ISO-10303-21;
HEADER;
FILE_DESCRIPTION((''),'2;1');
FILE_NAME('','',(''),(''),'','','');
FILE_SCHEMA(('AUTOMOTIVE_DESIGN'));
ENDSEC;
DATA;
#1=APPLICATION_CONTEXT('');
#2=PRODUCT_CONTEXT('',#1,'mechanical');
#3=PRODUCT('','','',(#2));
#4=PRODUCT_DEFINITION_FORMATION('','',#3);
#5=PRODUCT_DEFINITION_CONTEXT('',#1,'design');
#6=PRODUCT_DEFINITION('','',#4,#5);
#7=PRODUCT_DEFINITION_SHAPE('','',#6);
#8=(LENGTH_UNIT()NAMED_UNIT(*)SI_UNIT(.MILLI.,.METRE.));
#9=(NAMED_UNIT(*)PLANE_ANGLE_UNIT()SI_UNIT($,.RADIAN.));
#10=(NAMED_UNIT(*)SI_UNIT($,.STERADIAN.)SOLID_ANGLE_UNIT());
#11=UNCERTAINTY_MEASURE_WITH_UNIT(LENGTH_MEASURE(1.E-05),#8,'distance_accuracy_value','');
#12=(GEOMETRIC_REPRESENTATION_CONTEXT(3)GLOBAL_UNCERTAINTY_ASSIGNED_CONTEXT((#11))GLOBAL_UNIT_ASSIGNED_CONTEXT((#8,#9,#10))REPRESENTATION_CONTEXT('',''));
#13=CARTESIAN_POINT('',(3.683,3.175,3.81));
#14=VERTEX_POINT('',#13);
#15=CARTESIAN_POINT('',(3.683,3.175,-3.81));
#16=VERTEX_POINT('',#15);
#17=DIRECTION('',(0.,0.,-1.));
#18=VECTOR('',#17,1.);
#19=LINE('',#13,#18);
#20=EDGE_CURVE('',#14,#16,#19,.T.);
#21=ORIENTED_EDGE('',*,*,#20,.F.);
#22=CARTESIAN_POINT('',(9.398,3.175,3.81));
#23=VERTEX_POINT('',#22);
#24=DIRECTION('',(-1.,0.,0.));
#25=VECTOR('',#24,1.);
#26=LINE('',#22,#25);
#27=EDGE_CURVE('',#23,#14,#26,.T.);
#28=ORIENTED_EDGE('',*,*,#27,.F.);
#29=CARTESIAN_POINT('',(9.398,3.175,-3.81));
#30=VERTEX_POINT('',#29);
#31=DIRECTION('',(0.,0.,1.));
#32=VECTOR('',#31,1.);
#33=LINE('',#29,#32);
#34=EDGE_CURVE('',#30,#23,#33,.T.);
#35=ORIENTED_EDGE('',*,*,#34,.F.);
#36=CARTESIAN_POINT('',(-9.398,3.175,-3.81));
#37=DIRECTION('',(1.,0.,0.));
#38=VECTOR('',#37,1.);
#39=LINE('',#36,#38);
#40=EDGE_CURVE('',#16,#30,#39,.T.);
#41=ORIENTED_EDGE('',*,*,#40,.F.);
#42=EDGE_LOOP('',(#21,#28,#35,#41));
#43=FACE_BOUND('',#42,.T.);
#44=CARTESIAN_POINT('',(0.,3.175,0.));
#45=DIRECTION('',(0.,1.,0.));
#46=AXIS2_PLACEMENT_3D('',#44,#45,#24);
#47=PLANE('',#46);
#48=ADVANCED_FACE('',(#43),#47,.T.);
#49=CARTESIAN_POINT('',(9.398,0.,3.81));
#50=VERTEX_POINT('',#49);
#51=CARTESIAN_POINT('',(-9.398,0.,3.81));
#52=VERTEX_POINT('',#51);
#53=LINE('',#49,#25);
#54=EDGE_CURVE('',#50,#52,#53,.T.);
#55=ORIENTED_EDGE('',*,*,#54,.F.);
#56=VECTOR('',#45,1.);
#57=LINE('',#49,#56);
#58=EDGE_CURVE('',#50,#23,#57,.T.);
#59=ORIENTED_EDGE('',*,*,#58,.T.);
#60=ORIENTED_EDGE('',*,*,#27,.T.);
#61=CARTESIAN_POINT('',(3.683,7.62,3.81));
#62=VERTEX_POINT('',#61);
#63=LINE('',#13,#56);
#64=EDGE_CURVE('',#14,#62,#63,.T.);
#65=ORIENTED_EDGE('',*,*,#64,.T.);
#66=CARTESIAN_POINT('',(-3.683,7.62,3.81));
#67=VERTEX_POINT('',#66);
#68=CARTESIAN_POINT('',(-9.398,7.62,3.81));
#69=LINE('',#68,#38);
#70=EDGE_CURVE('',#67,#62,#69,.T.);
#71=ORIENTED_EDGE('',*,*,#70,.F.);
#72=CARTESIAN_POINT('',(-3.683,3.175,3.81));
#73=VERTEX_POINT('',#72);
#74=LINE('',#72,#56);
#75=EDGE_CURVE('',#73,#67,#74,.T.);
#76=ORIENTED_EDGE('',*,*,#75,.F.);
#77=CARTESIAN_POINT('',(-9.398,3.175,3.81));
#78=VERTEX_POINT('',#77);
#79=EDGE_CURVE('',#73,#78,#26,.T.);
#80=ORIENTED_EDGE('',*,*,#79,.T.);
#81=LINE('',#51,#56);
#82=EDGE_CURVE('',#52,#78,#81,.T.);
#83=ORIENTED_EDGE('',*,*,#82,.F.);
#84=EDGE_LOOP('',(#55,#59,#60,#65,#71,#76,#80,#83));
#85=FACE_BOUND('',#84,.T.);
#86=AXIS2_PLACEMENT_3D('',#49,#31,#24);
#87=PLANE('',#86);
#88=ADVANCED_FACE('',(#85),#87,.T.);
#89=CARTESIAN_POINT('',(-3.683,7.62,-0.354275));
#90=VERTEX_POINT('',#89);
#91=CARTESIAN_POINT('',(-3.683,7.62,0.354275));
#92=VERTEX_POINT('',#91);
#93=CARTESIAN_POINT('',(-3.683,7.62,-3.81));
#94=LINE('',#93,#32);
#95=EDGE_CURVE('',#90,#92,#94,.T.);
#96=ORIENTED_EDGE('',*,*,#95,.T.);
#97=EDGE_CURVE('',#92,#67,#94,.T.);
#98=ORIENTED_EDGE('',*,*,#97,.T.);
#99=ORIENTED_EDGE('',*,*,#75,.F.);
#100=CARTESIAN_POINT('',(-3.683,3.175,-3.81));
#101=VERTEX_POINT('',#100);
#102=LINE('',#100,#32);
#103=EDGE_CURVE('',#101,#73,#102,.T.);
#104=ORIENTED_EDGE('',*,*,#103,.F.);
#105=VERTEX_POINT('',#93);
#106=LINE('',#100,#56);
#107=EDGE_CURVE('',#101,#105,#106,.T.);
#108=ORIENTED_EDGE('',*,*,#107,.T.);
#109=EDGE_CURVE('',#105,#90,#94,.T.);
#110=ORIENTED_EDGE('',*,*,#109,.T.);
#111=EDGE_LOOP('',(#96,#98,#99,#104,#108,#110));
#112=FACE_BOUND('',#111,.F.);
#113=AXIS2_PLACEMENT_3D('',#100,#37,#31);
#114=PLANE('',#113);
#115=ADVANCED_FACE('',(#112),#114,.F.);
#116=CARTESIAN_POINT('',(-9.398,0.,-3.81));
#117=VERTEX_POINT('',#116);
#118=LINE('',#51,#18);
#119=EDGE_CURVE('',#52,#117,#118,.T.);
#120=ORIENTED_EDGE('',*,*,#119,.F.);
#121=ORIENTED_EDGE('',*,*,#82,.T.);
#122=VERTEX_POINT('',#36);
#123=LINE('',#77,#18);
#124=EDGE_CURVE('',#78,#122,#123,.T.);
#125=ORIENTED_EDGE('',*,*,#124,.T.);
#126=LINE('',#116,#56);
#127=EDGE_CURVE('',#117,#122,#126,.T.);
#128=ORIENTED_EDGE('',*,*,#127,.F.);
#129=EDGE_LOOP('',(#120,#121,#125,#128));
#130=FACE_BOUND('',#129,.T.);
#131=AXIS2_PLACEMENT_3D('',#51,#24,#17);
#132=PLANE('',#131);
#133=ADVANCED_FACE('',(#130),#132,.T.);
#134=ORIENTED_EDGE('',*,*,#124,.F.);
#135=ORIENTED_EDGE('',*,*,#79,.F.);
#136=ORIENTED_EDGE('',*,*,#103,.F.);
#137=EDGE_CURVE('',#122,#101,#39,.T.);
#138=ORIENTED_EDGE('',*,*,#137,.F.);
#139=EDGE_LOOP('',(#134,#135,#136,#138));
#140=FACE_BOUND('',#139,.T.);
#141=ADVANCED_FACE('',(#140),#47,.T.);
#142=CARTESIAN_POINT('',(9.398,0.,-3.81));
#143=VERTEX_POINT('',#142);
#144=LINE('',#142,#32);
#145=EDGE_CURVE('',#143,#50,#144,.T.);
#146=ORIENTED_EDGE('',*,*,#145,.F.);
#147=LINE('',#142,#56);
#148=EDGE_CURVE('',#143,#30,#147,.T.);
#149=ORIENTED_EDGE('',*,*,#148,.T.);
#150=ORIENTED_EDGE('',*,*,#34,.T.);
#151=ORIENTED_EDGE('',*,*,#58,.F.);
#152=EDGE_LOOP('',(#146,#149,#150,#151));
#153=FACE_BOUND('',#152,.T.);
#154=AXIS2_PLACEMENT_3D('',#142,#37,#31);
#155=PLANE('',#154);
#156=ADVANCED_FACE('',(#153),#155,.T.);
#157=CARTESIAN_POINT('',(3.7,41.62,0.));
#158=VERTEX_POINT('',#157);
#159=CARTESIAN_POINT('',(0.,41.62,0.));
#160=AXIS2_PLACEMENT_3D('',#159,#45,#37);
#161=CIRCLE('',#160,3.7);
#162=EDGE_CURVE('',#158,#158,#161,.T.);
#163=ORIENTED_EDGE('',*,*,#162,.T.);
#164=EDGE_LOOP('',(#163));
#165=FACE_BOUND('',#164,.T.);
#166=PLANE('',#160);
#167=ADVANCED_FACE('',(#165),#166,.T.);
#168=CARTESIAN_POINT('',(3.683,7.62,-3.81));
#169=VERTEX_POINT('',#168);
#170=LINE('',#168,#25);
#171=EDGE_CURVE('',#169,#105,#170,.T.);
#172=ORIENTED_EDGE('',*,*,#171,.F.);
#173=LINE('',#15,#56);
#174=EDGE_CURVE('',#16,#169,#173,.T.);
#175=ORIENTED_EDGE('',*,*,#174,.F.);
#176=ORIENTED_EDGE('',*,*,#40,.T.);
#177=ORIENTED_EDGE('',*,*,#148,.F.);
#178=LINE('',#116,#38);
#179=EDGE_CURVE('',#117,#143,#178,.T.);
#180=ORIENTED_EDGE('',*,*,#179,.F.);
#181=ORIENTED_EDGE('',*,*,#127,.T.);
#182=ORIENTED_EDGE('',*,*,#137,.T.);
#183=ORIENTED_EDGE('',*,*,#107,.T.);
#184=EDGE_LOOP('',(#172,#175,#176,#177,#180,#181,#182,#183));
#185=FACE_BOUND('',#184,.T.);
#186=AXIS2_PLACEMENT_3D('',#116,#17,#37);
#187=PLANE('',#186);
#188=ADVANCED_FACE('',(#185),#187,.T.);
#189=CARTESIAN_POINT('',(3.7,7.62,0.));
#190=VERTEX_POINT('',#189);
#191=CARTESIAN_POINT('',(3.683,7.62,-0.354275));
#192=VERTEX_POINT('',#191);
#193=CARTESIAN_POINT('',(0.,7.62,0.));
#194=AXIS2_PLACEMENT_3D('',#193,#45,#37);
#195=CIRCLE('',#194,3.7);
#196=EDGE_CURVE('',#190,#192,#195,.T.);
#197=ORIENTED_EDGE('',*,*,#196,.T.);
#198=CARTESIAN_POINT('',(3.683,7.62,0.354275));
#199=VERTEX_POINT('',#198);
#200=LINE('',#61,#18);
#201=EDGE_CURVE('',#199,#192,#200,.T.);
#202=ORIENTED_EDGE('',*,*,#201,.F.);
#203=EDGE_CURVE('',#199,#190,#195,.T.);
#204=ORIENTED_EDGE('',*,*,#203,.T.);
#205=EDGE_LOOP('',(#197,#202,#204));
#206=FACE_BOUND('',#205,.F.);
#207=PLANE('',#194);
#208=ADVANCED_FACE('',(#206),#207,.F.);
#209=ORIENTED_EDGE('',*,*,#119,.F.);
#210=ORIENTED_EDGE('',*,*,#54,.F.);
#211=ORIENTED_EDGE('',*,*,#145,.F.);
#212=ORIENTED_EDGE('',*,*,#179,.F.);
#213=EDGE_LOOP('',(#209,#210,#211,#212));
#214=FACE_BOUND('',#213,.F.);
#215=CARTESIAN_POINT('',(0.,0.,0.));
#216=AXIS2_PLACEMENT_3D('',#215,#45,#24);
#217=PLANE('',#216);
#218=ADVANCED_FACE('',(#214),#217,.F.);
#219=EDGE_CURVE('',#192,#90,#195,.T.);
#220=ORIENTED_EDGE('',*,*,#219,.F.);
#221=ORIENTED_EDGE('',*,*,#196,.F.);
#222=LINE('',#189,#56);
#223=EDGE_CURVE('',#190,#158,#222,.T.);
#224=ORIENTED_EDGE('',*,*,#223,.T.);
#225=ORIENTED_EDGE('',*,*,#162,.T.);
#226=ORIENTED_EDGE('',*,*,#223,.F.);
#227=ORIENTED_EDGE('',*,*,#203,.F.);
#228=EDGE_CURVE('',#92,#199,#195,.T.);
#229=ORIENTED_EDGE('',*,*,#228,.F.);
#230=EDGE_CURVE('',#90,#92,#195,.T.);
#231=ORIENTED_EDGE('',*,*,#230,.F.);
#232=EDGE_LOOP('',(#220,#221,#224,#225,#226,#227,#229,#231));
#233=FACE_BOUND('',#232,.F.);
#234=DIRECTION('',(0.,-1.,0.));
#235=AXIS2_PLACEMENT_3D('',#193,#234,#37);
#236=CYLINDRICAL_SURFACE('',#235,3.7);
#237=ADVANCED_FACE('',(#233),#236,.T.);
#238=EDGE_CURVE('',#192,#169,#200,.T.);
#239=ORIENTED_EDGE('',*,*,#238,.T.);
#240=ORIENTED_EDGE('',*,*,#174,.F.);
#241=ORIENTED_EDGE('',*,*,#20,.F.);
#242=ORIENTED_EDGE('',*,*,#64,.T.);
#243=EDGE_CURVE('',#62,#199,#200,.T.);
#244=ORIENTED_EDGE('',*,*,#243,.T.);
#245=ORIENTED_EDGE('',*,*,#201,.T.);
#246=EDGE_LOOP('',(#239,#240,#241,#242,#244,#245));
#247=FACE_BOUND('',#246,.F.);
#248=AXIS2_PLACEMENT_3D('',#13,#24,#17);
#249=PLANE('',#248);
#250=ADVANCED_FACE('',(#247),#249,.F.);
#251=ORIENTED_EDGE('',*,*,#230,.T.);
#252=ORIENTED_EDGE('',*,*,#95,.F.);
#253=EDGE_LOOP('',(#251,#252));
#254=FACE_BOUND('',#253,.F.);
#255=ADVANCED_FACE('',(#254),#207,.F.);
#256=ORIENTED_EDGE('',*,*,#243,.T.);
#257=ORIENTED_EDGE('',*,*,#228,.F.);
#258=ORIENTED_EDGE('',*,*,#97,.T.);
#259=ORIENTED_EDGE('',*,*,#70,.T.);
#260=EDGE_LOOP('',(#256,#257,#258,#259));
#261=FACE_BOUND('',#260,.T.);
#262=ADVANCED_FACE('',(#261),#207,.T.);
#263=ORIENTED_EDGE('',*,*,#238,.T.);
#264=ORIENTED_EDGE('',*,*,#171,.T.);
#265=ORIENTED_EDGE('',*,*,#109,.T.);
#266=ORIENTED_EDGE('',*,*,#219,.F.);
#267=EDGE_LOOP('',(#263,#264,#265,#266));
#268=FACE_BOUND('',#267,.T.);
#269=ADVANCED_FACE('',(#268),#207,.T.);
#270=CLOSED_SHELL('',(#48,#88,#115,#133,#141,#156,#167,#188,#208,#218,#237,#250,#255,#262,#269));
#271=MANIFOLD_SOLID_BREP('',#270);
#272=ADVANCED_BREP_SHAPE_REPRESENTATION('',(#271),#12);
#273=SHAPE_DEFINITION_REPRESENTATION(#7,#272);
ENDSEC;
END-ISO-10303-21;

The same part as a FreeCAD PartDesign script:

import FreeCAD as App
import Part
import Sketcher
Q = App.Units.Quantity

doc = App.newDocument("Part")
body = doc.addObject("PartDesign::Body", "Body")

# Sketch on XZ plane
sketch1 = body.newObject("Sketcher::SketchObject", "Sketch")
sketch1.AttachmentSupport = (doc.getObject("XZ_Plane"), [""])
sketch1.MapMode = "FlatFace"
sketch1.addGeometry([
    Part.LineSegment(App.Vector(-9, 4, 0), App.Vector(9, 4, 0)),
    Part.LineSegment(App.Vector(9, 4, 0), App.Vector(9, -4, 0)),
    Part.LineSegment(App.Vector(9, -4, 0), App.Vector(-9, -4, 0)),
    Part.LineSegment(App.Vector(-9, -4, 0), App.Vector(-9, 4, 0)),
], False)
sketch1.addConstraint([
    Sketcher.Constraint("Coincident", 0, 2, 1, 1),
    Sketcher.Constraint("Coincident", 1, 2, 2, 1),
    Sketcher.Constraint("Coincident", 2, 2, 3, 1),
    Sketcher.Constraint("Coincident", 3, 2, 0, 1),
    Sketcher.Constraint("Horizontal", 0),
    Sketcher.Constraint("Vertical", 1),
    Sketcher.Constraint("Horizontal", 2),
    Sketcher.Constraint("Vertical", 3),
    Sketcher.Constraint("Symmetric", 0, 2, 2, 2, -1, 1),
    Sketcher.Constraint("DistanceY", 1, 2, 1, 1, Q("0.3 in")),
    Sketcher.Constraint("DistanceX", 0, 1, 0, 2, Q("0.74 in")),
])
pad1 = body.newObject("PartDesign::Pad", "Pad")
pad1.Profile = sketch1
pad1.Length = Q("0.125 in")
pad1.Reversed = True

# Sketch on XZ plane
sketch2 = body.newObject("Sketcher::SketchObject", "Sketch001")
sketch2.AttachmentSupport = (doc.getObject("XZ_Plane"), [""])
sketch2.MapMode = "FlatFace"
sketch2.AttachmentOffset = App.Placement(App.Vector(0, 0, -0.125 * 25.4), App.Rotation())
sketch2.addGeometry([
    Part.LineSegment(App.Vector(-4, -4, 0), App.Vector(-4, 4, 0)),
    Part.LineSegment(App.Vector(-4, 4, 0), App.Vector(4, 4, 0)),
    Part.LineSegment(App.Vector(4, 4, 0), App.Vector(4, -4, 0)),
    Part.LineSegment(App.Vector(4, -4, 0), App.Vector(-4, -4, 0)),
], False)
sketch2.addConstraint([
    Sketcher.Constraint("Coincident", 0, 2, 1, 1),
    Sketcher.Constraint("Coincident", 1, 2, 2, 1),
    Sketcher.Constraint("Coincident", 2, 2, 3, 1),
    Sketcher.Constraint("Coincident", 3, 2, 0, 1),
    Sketcher.Constraint("Vertical", 0),
    Sketcher.Constraint("Horizontal", 1),
    Sketcher.Constraint("Vertical", 2),
    Sketcher.Constraint("Horizontal", 3),
    Sketcher.Constraint("Symmetric", 0, 2, 2, 2, -1, 1),
    Sketcher.Constraint("DistanceX", 1, 1, 1, 2, Q("0.29 in")),
    Sketcher.Constraint("DistanceY", 0, 1, 0, 2, Q("0.3 in")),
])
pad2 = body.newObject("PartDesign::Pad", "Pad001")
pad2.Profile = sketch2
pad2.Length = Q("0.175 in")
pad2.Reversed = True

# Sketch on XZ plane
sketch3 = body.newObject("Sketcher::SketchObject", "Sketch002")
sketch3.AttachmentSupport = (doc.getObject("XZ_Plane"), [""])
sketch3.MapMode = "FlatFace"
sketch3.AttachmentOffset = App.Placement(App.Vector(0, 0, -0.3 * 25.4), App.Rotation())
sketch3.addGeometry(Part.Circle(App.Vector(0, 0, 0), App.Vector(0, 0, 1), 3.7), False)
sketch3.addConstraint([
    Sketcher.Constraint("Coincident", 0, 3, -1, 1),
    Sketcher.Constraint("Diameter", 0, 7.4),
])
pad3 = body.newObject("PartDesign::Pad", "Pad002")
pad3.Profile = sketch3
pad3.Length = 34
pad3.Reversed = True

doc.recompute()
